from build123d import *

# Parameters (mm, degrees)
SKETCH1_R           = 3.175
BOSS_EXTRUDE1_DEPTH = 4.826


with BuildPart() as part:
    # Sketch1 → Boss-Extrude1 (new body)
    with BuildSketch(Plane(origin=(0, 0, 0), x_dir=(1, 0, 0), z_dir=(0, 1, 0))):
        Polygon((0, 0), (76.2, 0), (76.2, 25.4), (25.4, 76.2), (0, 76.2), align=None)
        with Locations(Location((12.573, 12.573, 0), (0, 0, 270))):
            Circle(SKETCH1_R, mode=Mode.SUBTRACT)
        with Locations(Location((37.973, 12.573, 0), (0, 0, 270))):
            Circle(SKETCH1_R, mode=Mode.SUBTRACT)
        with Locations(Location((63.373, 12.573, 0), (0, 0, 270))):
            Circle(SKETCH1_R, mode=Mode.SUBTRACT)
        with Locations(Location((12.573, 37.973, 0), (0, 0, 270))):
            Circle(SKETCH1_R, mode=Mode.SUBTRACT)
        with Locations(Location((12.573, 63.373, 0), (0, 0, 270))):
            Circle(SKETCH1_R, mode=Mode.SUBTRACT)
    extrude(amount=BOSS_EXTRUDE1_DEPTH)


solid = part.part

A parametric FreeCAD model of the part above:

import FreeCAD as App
import Part
import Sketcher

V = App.Vector
Q = App.Units.Quantity

doc = App.newDocument("Part")
params = doc.addObject("Spreadsheet::Sheet", "Params")
for row, (alias, value) in enumerate([
    ("sketch1_diameter", "0.25 in"),
    ("sketch1_width", "3 in"),
    ("sketch1_width2", "1 in"),
    ("pad1_length", "0.19 in"),
], start=1):
    params.set(f"A{row}", alias)
    params.set(f"B{row}", "=" + value)
    params.setAlias(f"B{row}", alias)

body = doc.addObject("PartDesign::Body", "Body")

# Sketch on XZ plane
sketch1 = body.newObject("Sketcher::SketchObject", "Sketch")
sketch1.AttachmentSupport = (doc.getObject("XZ_Plane"), [""])
sketch1.MapMode = "FlatFace"
sketch1.addGeometry([
    Part.LineSegment(V(0, 0, 0), V(76.2, 0, 0)),  # 0
    Part.LineSegment(V(76.2, 0, 0), V(76.2, -25.4, 0)),  # 1
    Part.LineSegment(V(76.2, -25.4, 0), V(25.4, -76.2, 0)),  # 2
    Part.LineSegment(V(25.4, -76.2, 0), V(0, -76.2, 0)),  # 3
    Part.LineSegment(V(0, -76.2, 0), V(0, 0, 0)),  # 4
    Part.Circle(V(12.6, -12.6, 0), V(0, 0, 1), 3.2),  # 5
    Part.Circle(V(38, -12.6, 0), V(0, 0, 1), 3.2),  # 6
    Part.Circle(V(63.4, -12.6, 0), V(0, 0, 1), 3.2),  # 7
    Part.Circle(V(12.6, -38, 0), V(0, 0, 1), 3.2),  # 8
    Part.Circle(V(12.6, -63.4, 0), V(0, 0, 1), 3.2),  # 9
], False)
sketch1.addConstraint([
    Sketcher.Constraint("Coincident", 0, 2, 1, 1),
    Sketcher.Constraint("Coincident", 1, 2, 2, 1),
    Sketcher.Constraint("Coincident", 2, 2, 3, 1),
    Sketcher.Constraint("Coincident", 3, 2, 4, 1),
    Sketcher.Constraint("Coincident", 4, 2, 0, 1),
    Sketcher.Constraint("Horizontal", 0),
    Sketcher.Constraint("Vertical", 1),
    Sketcher.Constraint("Horizontal", 3),
    Sketcher.Constraint("Vertical", 4),
    Sketcher.Constraint("Coincident", 4, 2, -1, 1),
    Sketcher.Constraint("Equal", 5, 6),
    Sketcher.Constraint("Equal", 6, 7),
    Sketcher.Constraint("Equal", 7, 8),
    Sketcher.Constraint("Equal", 8, 9),
    Sketcher.Constraint("Horizontal", 5, 3, 6, 3),
    Sketcher.Constraint("Horizontal", 6, 3, 7, 3),
    Sketcher.Constraint("Vertical", 5, 3, 8, 3),
    Sketcher.Constraint("Vertical", 8, 3, 9, 3),
    Sketcher.Constraint("Equal", 3, 1),
    Sketcher.Constraint("Equal", 0, 4),
    Sketcher.Constraint("Diameter", 5, Q("0.25 in")),
    Sketcher.Constraint("DistanceX", 0, 1, 0, 2, Q("3 in")),
    Sketcher.Constraint("DistanceX", 3, 2, 3, 1, Q("1 in")),
    Sketcher.Constraint("DistanceX", 5, 3, 6, 3, Q("1 in")),
    Sketcher.Constraint("DistanceX", 6, 3, 7, 3, Q("1 in")),
    Sketcher.Constraint("DistanceY", 8, 3, 5, 3, Q("1 in")),
    Sketcher.Constraint("DistanceY", 9, 3, 8, 3, Q("1 in")),
    Sketcher.Constraint("DistanceX", -1, 1, 5, 3, Q("0.495 in")),
    Sketcher.Constraint("DistanceY", 5, 3, -1, 1, Q("0.495 in")),
])
sketch1.setExpression("Constraints[20]", "Params.sketch1_diameter")
sketch1.setExpression("Constraints[21]", "Params.sketch1_width")
sketch1.setExpression("Constraints[22]", "Params.sketch1_width2")
pad1 = body.newObject("PartDesign::Pad", "Pad")
pad1.Profile = sketch1
pad1.setExpression("Length", "Params.pad1_length")
pad1.Reversed = True

doc.recompute()
